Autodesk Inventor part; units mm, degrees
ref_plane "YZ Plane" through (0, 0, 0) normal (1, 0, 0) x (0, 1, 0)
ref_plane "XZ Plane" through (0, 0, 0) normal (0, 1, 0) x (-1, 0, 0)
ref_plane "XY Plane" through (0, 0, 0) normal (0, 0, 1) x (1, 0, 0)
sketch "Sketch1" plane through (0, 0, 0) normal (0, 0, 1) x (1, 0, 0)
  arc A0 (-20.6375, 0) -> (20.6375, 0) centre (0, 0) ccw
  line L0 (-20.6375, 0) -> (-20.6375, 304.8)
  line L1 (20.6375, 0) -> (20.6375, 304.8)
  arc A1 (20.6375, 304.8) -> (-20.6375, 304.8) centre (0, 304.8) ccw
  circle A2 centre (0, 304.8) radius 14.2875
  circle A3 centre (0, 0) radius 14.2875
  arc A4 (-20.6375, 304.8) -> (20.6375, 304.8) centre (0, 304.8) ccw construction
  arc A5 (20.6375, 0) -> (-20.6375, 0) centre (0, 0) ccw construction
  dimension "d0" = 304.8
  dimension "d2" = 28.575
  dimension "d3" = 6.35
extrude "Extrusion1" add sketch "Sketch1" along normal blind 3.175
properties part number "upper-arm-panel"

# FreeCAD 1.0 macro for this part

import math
import FreeCAD as App
import Part
import Sketcher
Q = App.Units.Quantity

doc = App.newDocument("Part")
params = doc.addObject("Spreadsheet::Sheet", "Params")
for row, (alias, value) in enumerate([
    ("sketch1_height", "12 in"),
    ("sketch1_diameter", "1.125 in"),
    ("sketch1_radius", "0.8125 in"),
    ("pad1_length", "0.125 in"),
], start=1):
    params.set(f"A{row}", alias)
    params.set(f"B{row}", "=" + value)
    params.setAlias(f"B{row}", alias)

body = doc.addObject("PartDesign::Body", "Body")

sketch1 = body.newObject("Sketcher::SketchObject", "Sketch")
sketch1.AttachmentSupport = (doc.getObject("XY_Plane"), [""])
sketch1.MapMode = "FlatFace"
sketch1.addGeometry([
    Part.LineSegment(App.Vector(-21, 305, 0), App.Vector(-21, 0, 0)),
    Part.ArcOfCircle(Part.Circle(App.Vector(0, 0, 0), App.Vector(0, 0, 1), 21), math.radians(180), math.radians(360)),
    Part.LineSegment(App.Vector(21, 0, 0), App.Vector(21, 305, 0)),
    Part.ArcOfCircle(Part.Circle(App.Vector(0, 305, 0), App.Vector(0, 0, 1), 21), math.radians(0), math.radians(180)),
    Part.Circle(App.Vector(0, 0, 0), App.Vector(0, 0, 1), 14),
    Part.Circle(App.Vector(0, 305, 0), App.Vector(0, 0, 1), 14),
], False)
sketch1.addConstraint([
    Sketcher.Constraint("Tangent", 0, 2, 1, 1),
    Sketcher.Constraint("Tangent", 1, 2, 2, 1),
    Sketcher.Constraint("Tangent", 2, 2, 3, 1),
    Sketcher.Constraint("Tangent", 3, 2, 0, 1),
    Sketcher.Constraint("Vertical", 0),
    Sketcher.Constraint("Vertical", 2),
    Sketcher.Constraint("Coincident", 1, 3, -1, 1),
    Sketcher.Constraint("Coincident", 4, 3, -1, 1),
    Sketcher.Constraint("Coincident", 5, 3, 3, 3),
    Sketcher.Constraint("Equal", 4, 5),
    Sketcher.Constraint("DistanceY", 0, 2, 0, 1, Q("12 in")),
    Sketcher.Constraint("Diameter", 4, Q("1.125 in")),
    Sketcher.Constraint("Radius", 1, Q("0.8125 in")),
])
sketch1.setExpression("Constraints[10]", "Params.sketch1_height")
sketch1.setExpression("Constraints[11]", "Params.sketch1_diameter")
sketch1.setExpression("Constraints[12]", "Params.sketch1_radius")
pad1 = body.newObject("PartDesign::Pad", "Pad")
pad1.Profile = sketch1
pad1.setExpression("Length", "Params.pad1_length")

doc.recompute()
